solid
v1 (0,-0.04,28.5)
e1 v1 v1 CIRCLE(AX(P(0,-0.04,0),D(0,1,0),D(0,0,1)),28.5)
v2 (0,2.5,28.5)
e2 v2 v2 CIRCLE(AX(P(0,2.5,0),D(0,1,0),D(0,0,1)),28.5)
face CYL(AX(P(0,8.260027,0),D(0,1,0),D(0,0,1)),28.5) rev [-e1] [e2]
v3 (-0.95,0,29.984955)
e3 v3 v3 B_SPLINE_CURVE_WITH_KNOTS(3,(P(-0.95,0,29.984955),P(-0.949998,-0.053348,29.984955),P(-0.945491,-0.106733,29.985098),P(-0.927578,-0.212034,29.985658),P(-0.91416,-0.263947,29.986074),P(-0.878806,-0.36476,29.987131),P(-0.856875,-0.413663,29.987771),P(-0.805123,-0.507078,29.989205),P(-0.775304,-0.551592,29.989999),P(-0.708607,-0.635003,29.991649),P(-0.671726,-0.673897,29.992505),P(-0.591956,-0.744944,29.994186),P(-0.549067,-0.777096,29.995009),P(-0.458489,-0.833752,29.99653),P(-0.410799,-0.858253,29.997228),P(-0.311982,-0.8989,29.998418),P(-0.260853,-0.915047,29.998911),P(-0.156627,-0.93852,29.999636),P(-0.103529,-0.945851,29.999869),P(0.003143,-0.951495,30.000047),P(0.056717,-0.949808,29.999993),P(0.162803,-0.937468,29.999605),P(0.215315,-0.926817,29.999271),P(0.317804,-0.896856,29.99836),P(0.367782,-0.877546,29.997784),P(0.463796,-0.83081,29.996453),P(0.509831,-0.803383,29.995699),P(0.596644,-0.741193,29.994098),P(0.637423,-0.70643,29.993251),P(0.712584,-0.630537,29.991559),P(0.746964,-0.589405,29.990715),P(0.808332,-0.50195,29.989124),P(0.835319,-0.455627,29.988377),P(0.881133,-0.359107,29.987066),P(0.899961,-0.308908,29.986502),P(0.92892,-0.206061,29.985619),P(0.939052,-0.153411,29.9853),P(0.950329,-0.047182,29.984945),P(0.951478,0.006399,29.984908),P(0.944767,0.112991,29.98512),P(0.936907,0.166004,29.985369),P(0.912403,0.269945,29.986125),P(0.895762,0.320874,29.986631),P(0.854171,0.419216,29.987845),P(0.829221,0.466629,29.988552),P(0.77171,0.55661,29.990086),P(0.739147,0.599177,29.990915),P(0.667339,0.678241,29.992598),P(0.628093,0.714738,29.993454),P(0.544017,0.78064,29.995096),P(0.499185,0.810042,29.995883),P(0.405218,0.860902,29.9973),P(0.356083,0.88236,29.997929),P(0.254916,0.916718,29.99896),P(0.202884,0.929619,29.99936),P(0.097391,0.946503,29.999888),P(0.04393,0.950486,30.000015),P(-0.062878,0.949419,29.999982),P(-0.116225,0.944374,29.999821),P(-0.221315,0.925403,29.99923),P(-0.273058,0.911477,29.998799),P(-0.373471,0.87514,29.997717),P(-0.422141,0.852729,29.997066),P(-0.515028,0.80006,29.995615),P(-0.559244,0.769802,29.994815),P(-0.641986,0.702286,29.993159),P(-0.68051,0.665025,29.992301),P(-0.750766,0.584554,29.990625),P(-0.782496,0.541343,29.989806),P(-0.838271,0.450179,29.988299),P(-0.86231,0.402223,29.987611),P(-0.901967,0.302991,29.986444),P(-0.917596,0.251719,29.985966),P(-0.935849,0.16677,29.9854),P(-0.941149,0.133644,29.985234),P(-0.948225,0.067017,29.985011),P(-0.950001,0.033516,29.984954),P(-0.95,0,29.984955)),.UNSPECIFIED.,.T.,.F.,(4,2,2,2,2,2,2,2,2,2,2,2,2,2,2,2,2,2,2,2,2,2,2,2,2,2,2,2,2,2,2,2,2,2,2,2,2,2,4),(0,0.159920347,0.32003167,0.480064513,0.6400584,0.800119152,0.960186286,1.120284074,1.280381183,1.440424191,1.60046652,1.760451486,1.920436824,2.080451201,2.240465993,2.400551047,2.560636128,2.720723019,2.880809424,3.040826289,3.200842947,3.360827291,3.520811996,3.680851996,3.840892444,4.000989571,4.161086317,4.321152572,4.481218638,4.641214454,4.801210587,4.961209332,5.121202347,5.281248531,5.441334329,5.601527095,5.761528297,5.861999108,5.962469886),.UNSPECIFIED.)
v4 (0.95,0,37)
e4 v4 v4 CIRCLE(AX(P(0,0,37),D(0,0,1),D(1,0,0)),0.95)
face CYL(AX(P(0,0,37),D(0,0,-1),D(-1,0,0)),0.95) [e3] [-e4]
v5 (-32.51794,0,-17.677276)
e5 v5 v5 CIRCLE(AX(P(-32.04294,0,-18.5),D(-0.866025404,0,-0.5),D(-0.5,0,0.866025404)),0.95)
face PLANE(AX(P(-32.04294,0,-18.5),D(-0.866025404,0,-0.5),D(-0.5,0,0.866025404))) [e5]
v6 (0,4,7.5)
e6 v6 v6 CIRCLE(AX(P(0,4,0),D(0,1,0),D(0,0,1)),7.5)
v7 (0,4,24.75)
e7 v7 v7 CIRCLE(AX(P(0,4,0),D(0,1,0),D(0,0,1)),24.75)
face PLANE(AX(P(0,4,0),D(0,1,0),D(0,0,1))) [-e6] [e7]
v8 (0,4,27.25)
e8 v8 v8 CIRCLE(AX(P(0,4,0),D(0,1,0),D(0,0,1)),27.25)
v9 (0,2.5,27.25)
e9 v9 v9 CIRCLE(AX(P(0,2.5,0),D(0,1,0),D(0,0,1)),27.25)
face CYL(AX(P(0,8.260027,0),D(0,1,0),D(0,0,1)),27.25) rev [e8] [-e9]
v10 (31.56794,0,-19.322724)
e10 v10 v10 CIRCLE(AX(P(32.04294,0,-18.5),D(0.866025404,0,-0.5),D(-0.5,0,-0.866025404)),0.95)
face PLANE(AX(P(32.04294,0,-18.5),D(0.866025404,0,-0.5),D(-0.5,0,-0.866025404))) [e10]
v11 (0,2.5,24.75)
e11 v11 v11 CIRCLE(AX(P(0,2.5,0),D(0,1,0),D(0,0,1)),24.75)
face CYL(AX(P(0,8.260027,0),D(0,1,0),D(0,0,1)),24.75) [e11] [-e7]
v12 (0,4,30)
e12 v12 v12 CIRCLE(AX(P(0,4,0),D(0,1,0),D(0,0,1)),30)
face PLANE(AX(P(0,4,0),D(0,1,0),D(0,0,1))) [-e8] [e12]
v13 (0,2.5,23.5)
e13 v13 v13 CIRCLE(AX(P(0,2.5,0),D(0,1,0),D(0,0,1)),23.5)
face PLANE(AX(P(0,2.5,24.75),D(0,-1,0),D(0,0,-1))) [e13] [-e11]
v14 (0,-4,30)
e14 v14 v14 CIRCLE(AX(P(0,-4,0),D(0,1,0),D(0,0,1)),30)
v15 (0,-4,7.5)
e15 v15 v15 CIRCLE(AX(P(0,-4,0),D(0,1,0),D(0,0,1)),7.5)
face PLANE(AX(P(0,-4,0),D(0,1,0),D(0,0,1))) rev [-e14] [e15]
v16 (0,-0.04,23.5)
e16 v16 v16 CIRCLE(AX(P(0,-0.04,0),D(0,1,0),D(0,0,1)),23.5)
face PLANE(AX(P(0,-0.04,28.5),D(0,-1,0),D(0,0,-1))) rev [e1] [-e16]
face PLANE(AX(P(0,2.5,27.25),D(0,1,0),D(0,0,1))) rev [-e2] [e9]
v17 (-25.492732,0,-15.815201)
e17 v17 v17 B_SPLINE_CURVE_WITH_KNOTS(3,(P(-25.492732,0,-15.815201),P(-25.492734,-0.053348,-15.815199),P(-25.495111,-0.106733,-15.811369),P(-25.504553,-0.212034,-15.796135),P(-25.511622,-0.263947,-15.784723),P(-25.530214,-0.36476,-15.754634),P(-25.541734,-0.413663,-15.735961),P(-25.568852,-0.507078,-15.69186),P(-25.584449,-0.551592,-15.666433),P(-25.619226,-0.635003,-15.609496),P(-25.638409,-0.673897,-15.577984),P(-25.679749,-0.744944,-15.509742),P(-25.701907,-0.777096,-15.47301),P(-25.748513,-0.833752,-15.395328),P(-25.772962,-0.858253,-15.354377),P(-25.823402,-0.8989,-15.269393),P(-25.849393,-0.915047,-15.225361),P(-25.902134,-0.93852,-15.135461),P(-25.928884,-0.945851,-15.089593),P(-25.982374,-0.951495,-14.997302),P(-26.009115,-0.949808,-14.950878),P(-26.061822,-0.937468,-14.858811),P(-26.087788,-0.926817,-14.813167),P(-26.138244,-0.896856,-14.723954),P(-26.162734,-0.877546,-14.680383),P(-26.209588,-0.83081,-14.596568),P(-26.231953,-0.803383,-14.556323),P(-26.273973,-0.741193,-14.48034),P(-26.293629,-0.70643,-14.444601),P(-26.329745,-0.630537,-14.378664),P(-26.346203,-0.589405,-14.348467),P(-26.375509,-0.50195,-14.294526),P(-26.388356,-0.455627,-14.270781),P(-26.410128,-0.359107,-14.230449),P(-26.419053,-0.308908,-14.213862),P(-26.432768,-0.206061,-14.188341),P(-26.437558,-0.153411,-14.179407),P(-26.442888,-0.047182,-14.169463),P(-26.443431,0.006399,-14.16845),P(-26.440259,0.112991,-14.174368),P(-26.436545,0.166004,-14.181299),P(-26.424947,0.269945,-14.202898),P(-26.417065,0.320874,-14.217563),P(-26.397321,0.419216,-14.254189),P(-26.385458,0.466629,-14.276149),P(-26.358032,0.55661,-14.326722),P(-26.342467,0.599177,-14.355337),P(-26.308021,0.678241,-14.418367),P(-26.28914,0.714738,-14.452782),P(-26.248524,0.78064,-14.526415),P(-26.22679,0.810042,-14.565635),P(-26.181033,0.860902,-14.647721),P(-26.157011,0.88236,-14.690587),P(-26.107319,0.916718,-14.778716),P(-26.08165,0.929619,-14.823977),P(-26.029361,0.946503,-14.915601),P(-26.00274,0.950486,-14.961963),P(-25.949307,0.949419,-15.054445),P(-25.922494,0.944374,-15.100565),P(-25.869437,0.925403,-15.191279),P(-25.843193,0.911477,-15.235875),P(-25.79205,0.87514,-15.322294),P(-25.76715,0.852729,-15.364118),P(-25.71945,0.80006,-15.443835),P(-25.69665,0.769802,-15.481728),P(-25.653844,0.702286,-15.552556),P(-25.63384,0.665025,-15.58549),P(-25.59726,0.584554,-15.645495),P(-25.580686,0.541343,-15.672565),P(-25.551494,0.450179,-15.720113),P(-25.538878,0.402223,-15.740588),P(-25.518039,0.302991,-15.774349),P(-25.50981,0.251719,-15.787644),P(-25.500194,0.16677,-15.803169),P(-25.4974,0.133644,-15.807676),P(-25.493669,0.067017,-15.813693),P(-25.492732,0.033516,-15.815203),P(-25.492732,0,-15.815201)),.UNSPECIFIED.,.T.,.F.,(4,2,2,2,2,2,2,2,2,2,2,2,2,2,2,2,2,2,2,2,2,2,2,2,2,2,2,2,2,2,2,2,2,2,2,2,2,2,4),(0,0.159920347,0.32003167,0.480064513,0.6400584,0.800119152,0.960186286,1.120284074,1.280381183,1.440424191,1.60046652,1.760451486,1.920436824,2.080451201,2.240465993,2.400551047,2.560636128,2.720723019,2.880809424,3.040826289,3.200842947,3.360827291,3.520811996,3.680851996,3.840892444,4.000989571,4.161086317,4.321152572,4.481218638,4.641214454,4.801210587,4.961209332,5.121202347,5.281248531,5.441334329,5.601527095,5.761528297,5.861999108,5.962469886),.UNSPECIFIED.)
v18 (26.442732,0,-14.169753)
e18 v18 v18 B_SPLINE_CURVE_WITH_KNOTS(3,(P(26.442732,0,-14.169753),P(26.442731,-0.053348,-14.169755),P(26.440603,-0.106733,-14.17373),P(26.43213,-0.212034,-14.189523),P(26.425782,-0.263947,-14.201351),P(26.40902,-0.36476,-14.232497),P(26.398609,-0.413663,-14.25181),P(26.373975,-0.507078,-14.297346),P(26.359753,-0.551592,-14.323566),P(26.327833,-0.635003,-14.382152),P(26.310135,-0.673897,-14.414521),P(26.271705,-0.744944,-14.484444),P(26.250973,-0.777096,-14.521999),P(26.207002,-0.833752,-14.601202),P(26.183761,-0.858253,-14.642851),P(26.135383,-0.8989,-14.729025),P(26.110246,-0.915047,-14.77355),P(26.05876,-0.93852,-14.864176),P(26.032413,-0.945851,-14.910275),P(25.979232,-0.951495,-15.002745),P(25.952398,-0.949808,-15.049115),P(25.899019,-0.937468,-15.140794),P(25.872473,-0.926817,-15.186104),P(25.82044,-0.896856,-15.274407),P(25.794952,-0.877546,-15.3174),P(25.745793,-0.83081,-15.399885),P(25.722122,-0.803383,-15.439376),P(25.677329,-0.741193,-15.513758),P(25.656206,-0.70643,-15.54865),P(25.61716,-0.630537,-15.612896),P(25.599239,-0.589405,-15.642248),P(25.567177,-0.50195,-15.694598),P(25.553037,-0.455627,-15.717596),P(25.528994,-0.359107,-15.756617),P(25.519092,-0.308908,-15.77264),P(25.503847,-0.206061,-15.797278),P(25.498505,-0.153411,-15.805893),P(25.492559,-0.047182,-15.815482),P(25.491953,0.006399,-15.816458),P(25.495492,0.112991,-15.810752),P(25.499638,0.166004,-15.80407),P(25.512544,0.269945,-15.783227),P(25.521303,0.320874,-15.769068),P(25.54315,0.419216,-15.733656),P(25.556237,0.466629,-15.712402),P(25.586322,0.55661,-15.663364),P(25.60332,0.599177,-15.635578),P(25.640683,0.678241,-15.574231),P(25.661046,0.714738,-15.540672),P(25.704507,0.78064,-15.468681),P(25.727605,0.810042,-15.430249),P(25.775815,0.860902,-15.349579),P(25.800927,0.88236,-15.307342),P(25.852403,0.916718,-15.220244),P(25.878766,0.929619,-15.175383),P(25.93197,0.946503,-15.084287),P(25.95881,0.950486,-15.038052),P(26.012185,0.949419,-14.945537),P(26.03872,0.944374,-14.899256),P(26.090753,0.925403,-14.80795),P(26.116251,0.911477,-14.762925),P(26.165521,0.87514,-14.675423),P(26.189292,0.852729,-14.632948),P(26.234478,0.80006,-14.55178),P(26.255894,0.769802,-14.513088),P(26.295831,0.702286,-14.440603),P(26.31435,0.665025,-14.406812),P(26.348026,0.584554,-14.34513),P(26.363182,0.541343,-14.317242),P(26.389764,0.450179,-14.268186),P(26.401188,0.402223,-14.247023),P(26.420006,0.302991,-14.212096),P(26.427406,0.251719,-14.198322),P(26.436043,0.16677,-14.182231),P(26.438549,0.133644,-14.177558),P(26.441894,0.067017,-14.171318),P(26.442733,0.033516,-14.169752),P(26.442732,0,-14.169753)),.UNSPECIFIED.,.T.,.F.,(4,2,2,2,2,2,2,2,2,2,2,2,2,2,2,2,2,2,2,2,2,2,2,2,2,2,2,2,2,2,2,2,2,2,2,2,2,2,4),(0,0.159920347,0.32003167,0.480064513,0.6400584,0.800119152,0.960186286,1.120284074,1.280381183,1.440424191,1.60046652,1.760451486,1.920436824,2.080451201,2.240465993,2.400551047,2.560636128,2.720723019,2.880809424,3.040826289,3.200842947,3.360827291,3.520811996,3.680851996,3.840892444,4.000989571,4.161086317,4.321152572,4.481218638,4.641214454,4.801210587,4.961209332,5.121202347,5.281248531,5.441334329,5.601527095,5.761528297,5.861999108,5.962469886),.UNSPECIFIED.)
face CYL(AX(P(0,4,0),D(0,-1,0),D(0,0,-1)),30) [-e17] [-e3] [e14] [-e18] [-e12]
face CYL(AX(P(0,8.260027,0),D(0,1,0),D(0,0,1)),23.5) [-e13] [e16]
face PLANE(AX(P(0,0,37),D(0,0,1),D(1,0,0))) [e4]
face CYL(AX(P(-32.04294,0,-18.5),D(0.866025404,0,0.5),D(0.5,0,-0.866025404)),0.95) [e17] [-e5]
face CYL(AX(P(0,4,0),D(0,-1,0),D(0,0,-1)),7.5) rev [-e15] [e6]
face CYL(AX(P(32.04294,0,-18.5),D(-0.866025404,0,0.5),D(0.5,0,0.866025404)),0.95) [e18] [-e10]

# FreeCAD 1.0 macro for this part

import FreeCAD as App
import Part
import Sketcher
Q = App.Units.Quantity

doc = App.newDocument("Part")
body = doc.addObject("PartDesign::Body", "Body")

# Sketch on XZ plane
sketch1 = body.newObject("Sketcher::SketchObject", "Sketch")
sketch1.AttachmentSupport = (doc.getObject("XZ_Plane"), [""])
sketch1.MapMode = "FlatFace"
sketch1.addGeometry([
    Part.Circle(App.Vector(0, 0, 0), App.Vector(0, 0, 1), 30),
    Part.Circle(App.Vector(0, 0, 0), App.Vector(0, 0, 1), 7.5),
], False)
sketch1.addConstraint([
    Sketcher.Constraint("Coincident", 0, 3, -1, 1),
    Sketcher.Constraint("Coincident", 1, 3, -1, 1),
    Sketcher.Constraint("Diameter", 0, Q("60 mm")),
    Sketcher.Constraint("Diameter", 1, Q("15 mm")),
])
pad1 = body.newObject("PartDesign::Pad", "Pad")
pad1.Profile = sketch1
pad1.Length = 8
pad1.Midplane = True

# Sketch on YZ plane
sketch2 = body.newObject("Sketcher::SketchObject", "Sketch001")
sketch2.AttachmentSupport = (doc.getObject("YZ_Plane"), [""])
sketch2.MapMode = "FlatFace"
sketch2.addGeometry([
    Part.LineSegment(App.Vector(4, 24.75, 0), App.Vector(4, 27.25, 0)),  # 0
    Part.LineSegment(App.Vector(4, 27.25, 0), App.Vector(2.5, 27.25, 0)),  # 1
    Part.LineSegment(App.Vector(2.5, 27.25, 0), App.Vector(2.5, 28.5, 0)),  # 2
    Part.LineSegment(App.Vector(2.5, 28.5, 0), App.Vector(-0.04, 28.5, 0)),  # 3
    Part.LineSegment(App.Vector(-0.04, 28.5, 0), App.Vector(-0.04, 23.5, 0)),  # 4
    Part.LineSegment(App.Vector(-0.04, 23.5, 0), App.Vector(2.5, 23.5, 0)),  # 5
    Part.LineSegment(App.Vector(2.5, 23.5, 0), App.Vector(2.5, 24.75, 0)),  # 6
    Part.LineSegment(App.Vector(2.5, 24.75, 0), App.Vector(4, 24.75, 0)),  # 7
], False)
sketch2.addConstraint([
    Sketcher.Constraint("Coincident", 0, 2, 1, 1),
    Sketcher.Constraint("Coincident", 1, 2, 2, 1),
    Sketcher.Constraint("Coincident", 2, 2, 3, 1),
    Sketcher.Constraint("Coincident", 3, 2, 4, 1),
    Sketcher.Constraint("Coincident", 4, 2, 5, 1),
    Sketcher.Constraint("Coincident", 5, 2, 6, 1),
    Sketcher.Constraint("Coincident", 6, 2, 7, 1),
    Sketcher.Constraint("Coincident", 7, 2, 0, 1),
    Sketcher.Constraint("Vertical", 0),
    Sketcher.Constraint("Horizontal", 1),
    Sketcher.Constraint("Vertical", 2),
    Sketcher.Constraint("Horizontal", 3),
    Sketcher.Constraint("Vertical", 4),
    Sketcher.Constraint("Horizontal", 5),
    Sketcher.Constraint("Vertical", 6),
    Sketcher.Constraint("Horizontal", 7),
    Sketcher.Constraint("Vertical", 2, 2, 5, 2),
    Sketcher.Constraint("Equal", 2, 6),
    Sketcher.Constraint("DistanceY", 4, 2, 4, 1, Q("5 mm")),
    Sketcher.Constraint("DistanceX", 1, 2, 1, 1, Q("1.5 mm")),
    Sketcher.Constraint("DistanceY", 0, 1, 0, 2, Q("2.5 mm")),
    Sketcher.Constraint("DistanceX", -1, 1, 0, 2, Q("4 mm")),
    Sketcher.Constraint("DistanceX", 3, 2, 3, 1, Q("2.54 mm")),
    Sketcher.Constraint("DistanceY", -1, 1, 2, 2, Q("28.5 mm")),
])
groove = body.newObject("PartDesign::Groove", "Groove")
groove.Profile = sketch2
groove.ReferenceAxis = (sketch2, ["H_Axis"])
groove.Angle = 360

# Sketch on XY plane
sketch3 = body.newObject("Sketcher::SketchObject", "Sketch002")
sketch3.AttachmentSupport = (doc.getObject("XY_Plane"), [""])
sketch3.MapMode = "FlatFace"
sketch3.AttachmentOffset = App.Placement(App.Vector(0, 0, 29), App.Rotation())
sketch3.addGeometry(Part.Circle(App.Vector(0, 0, 0), App.Vector(0, 0, 1), 0.95), False)
sketch3.addConstraint([
    Sketcher.Constraint("Coincident", 0, 3, -1, 1),
    Sketcher.Constraint("Diameter", 0, Q("1.9 mm")),
])
pad2 = body.newObject("PartDesign::Pad", "Pad001")
pad2.Profile = sketch3
pad2.Length = 8
doc.recompute()

polarpattern = body.newObject("PartDesign::PolarPattern", "PolarPattern")
polarpattern.Originals = [pad2]
polarpattern.Axis = (doc.getObject("Y_Axis"), [""])
polarpattern.Angle = 360
polarpattern.Occurrences = 3
body.Tip = polarpattern

doc.recompute()
